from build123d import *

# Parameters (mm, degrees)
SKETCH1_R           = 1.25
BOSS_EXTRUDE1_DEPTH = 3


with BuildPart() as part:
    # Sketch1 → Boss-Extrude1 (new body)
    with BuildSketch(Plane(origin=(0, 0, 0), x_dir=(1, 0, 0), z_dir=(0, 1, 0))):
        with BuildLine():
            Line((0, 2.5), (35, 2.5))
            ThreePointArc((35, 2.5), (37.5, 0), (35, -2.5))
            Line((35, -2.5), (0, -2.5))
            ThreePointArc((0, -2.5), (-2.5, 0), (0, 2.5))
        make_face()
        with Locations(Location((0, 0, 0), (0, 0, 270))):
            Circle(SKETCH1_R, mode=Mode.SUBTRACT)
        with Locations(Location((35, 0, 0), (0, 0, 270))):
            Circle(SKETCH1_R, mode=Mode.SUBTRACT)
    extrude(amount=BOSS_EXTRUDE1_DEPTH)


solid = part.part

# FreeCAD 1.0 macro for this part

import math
import FreeCAD as App
import Part
import Sketcher

V = App.Vector
Q = App.Units.Quantity

doc = App.newDocument("Part")
body = doc.addObject("PartDesign::Body", "Body")

# Sketch on XZ plane
sketch1 = body.newObject("Sketcher::SketchObject", "Sketch")
sketch1.AttachmentSupport = (doc.getObject("XZ_Plane"), [""])
sketch1.MapMode = "FlatFace"
sketch1.addGeometry(Part.LineSegment(V(35, -2.5, 0), V(0, -2.5, 0)), False)
sketch1.addGeometry(Part.ArcOfCircle(Part.Circle(V(0, 0, 0), V(0, 0, 1), 2.5), math.radians(90), math.radians(270)), False)
sketch1.addGeometry(Part.LineSegment(V(0, 2.5, 0), V(35, 2.5, 0)), False)
sketch1.addGeometry(Part.ArcOfCircle(Part.Circle(V(35, 0, 0), V(0, 0, 1), 2.5), math.radians(-90), math.radians(90)), False)
sketch1.addGeometry(Part.Circle(V(35, 0, 0), V(0, 0, 1), 1.2), False)
sketch1.addGeometry(Part.Circle(V(0, 0, 0), V(0, 0, 1), 1.2), False)
sketch1.addConstraint(Sketcher.Constraint("Tangent", 0, 2, 1, 2))
sketch1.addConstraint(Sketcher.Constraint("Tangent", 1, 1, 2, 1))
sketch1.addConstraint(Sketcher.Constraint("Tangent", 2, 2, 3, 2))
sketch1.addConstraint(Sketcher.Constraint("Tangent", 3, 1, 0, 1))
sketch1.addConstraint(Sketcher.Constraint("Horizontal", 0))
sketch1.addConstraint(Sketcher.Constraint("Horizontal", 2))
sketch1.addConstraint(Sketcher.Constraint("Coincident", 1, 3, -1, 1))
sketch1.addConstraint(Sketcher.Constraint("Coincident", 5, 3, -1, 1))
sketch1.addConstraint(Sketcher.Constraint("Coincident", 4, 3, 3, 3))
sketch1.addConstraint(Sketcher.Constraint("Equal", 4, 5))
sketch1.addConstraint(Sketcher.Constraint("Diameter", 4, Q("2.5 mm")))
sketch1.addConstraint(Sketcher.Constraint("Radius", 1, Q("2.5 mm")))
sketch1.addConstraint(Sketcher.Constraint("DistanceX", 0, 2, 0, 1, Q("35 mm")))
pad1 = body.newObject("PartDesign::Pad", "Pad")
pad1.Profile = sketch1
pad1.Length = 3
pad1.Reversed = True

doc.recompute()
